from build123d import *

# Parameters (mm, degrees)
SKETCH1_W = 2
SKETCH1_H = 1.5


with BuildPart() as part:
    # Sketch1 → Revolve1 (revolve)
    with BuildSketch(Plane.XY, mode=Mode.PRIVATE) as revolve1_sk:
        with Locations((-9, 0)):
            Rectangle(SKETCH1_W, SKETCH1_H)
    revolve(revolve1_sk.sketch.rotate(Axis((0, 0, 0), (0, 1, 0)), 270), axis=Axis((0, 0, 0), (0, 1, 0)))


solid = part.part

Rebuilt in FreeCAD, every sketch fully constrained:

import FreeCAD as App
import Part
import Sketcher
from FreeCAD import Vector
Q = App.Units.Quantity


def add_polygon(sketch, points):
    """Adds a closed chain of lines whose ends are joined by coincident constraints."""
    first, n = sketch.GeometryCount, len(points)
    for a, b in zip(points, points[1:] + points[:1]):
        sketch.addGeometry(Part.LineSegment(App.Vector(*a, 0), App.Vector(*b, 0)), False)
    for i in range(n):
        sketch.addConstraint(Sketcher.Constraint("Coincident", first + i, 2, first + (i + 1) % n, 1))

doc = App.newDocument("Part")
body = doc.addObject("PartDesign::Body", "Body")

sketch1 = body.newObject("Sketcher::SketchObject", "Sketch")
sketch1.AttachmentSupport = (doc.getObject("XY_Plane"), [""])
sketch1.MapMode = "FlatFace"
add_polygon(sketch1, [(-10, 0.8), (-10, -0.8), (-8, -0.8), (-8, 0.8)])
sketch1.addConstraint([
    Sketcher.Constraint("Vertical", 0),
    Sketcher.Constraint("Horizontal", 1),
    Sketcher.Constraint("Vertical", 2),
    Sketcher.Constraint("Horizontal", 3),
    Sketcher.Constraint("DistanceX", 1, 1, 1, 2, Q("2 mm")),
    Sketcher.Constraint("DistanceY", 0, 2, 0, 1, Q("1.5 mm")),
    Sketcher.Constraint("DistanceX", 0, 2, -1, 1, Q("10 mm")),
    Sketcher.Constraint("DistanceY", 0, 2, -1, 1, Q("0.75 mm")),
])
revolution = body.newObject("PartDesign::Revolution", "Revolution")
revolution.Profile = sketch1
revolution.ReferenceAxis = (sketch1, ["V_Axis"])
revolution.Angle = 360

doc.recompute()
